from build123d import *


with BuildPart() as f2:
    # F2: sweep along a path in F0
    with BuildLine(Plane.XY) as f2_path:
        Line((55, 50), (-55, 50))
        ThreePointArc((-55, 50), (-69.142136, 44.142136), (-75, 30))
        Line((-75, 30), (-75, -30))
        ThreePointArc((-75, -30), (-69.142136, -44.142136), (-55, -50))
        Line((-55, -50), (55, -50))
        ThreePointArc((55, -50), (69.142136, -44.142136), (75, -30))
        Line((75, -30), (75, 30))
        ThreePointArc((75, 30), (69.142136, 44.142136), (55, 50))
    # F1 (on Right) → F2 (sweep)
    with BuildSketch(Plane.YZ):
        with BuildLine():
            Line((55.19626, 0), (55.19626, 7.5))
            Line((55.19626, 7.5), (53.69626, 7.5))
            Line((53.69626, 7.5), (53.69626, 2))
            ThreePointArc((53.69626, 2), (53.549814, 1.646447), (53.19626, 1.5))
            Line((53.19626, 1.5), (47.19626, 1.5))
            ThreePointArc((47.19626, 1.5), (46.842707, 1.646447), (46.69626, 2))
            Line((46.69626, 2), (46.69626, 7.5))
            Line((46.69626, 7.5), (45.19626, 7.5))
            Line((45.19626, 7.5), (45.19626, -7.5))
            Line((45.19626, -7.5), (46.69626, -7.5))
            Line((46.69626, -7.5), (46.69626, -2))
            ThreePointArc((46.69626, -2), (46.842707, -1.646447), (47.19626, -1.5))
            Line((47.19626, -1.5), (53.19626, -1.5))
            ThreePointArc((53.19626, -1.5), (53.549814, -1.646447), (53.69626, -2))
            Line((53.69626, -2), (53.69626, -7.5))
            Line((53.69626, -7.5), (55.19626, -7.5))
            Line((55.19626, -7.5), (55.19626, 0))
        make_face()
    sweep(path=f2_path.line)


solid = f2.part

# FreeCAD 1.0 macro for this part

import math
import FreeCAD as App
import Part
import Sketcher
Q = App.Units.Quantity

doc = App.newDocument("Part")
body = doc.addObject("PartDesign::Body", "Body")

# Sketch on YZ plane
sketch1 = body.newObject("Sketcher::SketchObject", "Sketch")
sketch1.AttachmentSupport = (doc.getObject("YZ_Plane"), [""])
sketch1.MapMode = "FlatFace"
sketch1.addGeometry(Part.LineSegment(App.Vector(55.2, 7.5, 0), App.Vector(53.7, 7.5, 0)), False)
sketch1.addGeometry(Part.LineSegment(App.Vector(53.7, 7.5, 0), App.Vector(53.7, 2, 0)), False)
sketch1.addGeometry(Part.ArcOfCircle(Part.Circle(App.Vector(53.2, 2, 0), App.Vector(0, 0, 1), 0.5), math.radians(-90), math.radians(0)), False)
sketch1.addGeometry(Part.LineSegment(App.Vector(53.2, 1.5, 0), App.Vector(47.2, 1.5, 0)), False)
sketch1.addGeometry(Part.ArcOfCircle(Part.Circle(App.Vector(47.2, 2, 0), App.Vector(0, 0, 1), 0.5), math.radians(-180), math.radians(-90)), False)
sketch1.addGeometry(Part.LineSegment(App.Vector(46.7, 2, 0), App.Vector(46.7, 7.5, 0)), False)
sketch1.addGeometry(Part.LineSegment(App.Vector(46.7, 7.5, 0), App.Vector(45.2, 7.5, 0)), False)
sketch1.addGeometry(Part.LineSegment(App.Vector(45.2, 7.5, 0), App.Vector(45.2, -7.5, 0)), False)
sketch1.addGeometry(Part.LineSegment(App.Vector(45.2, -7.5, 0), App.Vector(46.7, -7.5, 0)), False)
sketch1.addGeometry(Part.LineSegment(App.Vector(46.7, -7.5, 0), App.Vector(46.7, -2, 0)), False)
sketch1.addGeometry(Part.ArcOfCircle(Part.Circle(App.Vector(47.2, -2, 0), App.Vector(0, 0, 1), 0.5), math.radians(90), math.radians(180)), False)
sketch1.addGeometry(Part.LineSegment(App.Vector(47.2, -1.5, 0), App.Vector(53.2, -1.5, 0)), False)
sketch1.addGeometry(Part.ArcOfCircle(Part.Circle(App.Vector(53.2, -2, 0), App.Vector(0, 0, 1), 0.5), math.radians(0), math.radians(90)), False)
sketch1.addGeometry(Part.LineSegment(App.Vector(53.7, -2, 0), App.Vector(53.7, -7.5, 0)), False)
sketch1.addGeometry(Part.LineSegment(App.Vector(53.7, -7.5, 0), App.Vector(55.2, -7.5, 0)), False)
sketch1.addGeometry(Part.LineSegment(App.Vector(55.2, -7.5, 0), App.Vector(55.2, 7.5, 0)), False)
sketch1.addConstraint(Sketcher.Constraint("Coincident", 0, 2, 1, 1))
sketch1.addConstraint(Sketcher.Constraint("Tangent", 1, 2, 2, 2))
sketch1.addConstraint(Sketcher.Constraint("Tangent", 2, 1, 3, 1))
sketch1.addConstraint(Sketcher.Constraint("Coincident", 3, 2, 4, 2))
sketch1.addConstraint(Sketcher.Constraint("Coincident", 4, 1, 5, 1))
sketch1.addConstraint(Sketcher.Constraint("Coincident", 5, 2, 6, 1))
sketch1.addConstraint(Sketcher.Constraint("Coincident", 6, 2, 7, 1))
sketch1.addConstraint(Sketcher.Constraint("Coincident", 7, 2, 8, 1))
sketch1.addConstraint(Sketcher.Constraint("Coincident", 8, 2, 9, 1))
sketch1.addConstraint(Sketcher.Constraint("Coincident", 9, 2, 10, 2))
sketch1.addConstraint(Sketcher.Constraint("Coincident", 10, 1, 11, 1))
sketch1.addConstraint(Sketcher.Constraint("Tangent", 11, 2, 12, 2))
sketch1.addConstraint(Sketcher.Constraint("Tangent", 12, 1, 13, 1))
sketch1.addConstraint(Sketcher.Constraint("Coincident", 13, 2, 14, 1))
sketch1.addConstraint(Sketcher.Constraint("Coincident", 14, 2, 15, 1))
sketch1.addConstraint(Sketcher.Constraint("Coincident", 15, 2, 0, 1))
sketch1.addConstraint(Sketcher.Constraint("Horizontal", 0))
sketch1.addConstraint(Sketcher.Constraint("Vertical", 1))
sketch1.addConstraint(Sketcher.Constraint("Horizontal", 3))
sketch1.addConstraint(Sketcher.Constraint("Vertical", 5))
sketch1.addConstraint(Sketcher.Constraint("Horizontal", 6))
sketch1.addConstraint(Sketcher.Constraint("Vertical", 7))
sketch1.addConstraint(Sketcher.Constraint("Horizontal", 8))
sketch1.addConstraint(Sketcher.Constraint("Vertical", 9))
sketch1.addConstraint(Sketcher.Constraint("Horizontal", 11))
sketch1.addConstraint(Sketcher.Constraint("Vertical", 13))
sketch1.addConstraint(Sketcher.Constraint("Horizontal", 14))
sketch1.addConstraint(Sketcher.Constraint("Vertical", 15))
sketch1.addConstraint(Sketcher.Constraint("Equal", 2, 4))
sketch1.addConstraint(Sketcher.Constraint("Equal", 4, 10))
sketch1.addConstraint(Sketcher.Constraint("Equal", 10, 12))
sketch1.addConstraint(Sketcher.Constraint("Symmetric", 4, 3, 10, 3, -1))
sketch1.addConstraint(Sketcher.Constraint("Symmetric", 0, 2, 13, 2, -1))
sketch1.addConstraint(Sketcher.Constraint("Horizontal", 1, 2, 4, 1))
sketch1.addConstraint(Sketcher.Constraint("Horizontal", 0, 2, 5, 2))
sketch1.addConstraint(Sketcher.Constraint("Horizontal", 12, 3, 9, 2))
sketch1.addConstraint(Sketcher.Constraint("Horizontal", 8, 2, 13, 2))
sketch1.addConstraint(Sketcher.Constraint("Vertical", 10, 3, 3, 2))
sketch1.addConstraint(Sketcher.Constraint("Vertical", 3, 2, 10, 1))
sketch1.addConstraint(Sketcher.Constraint("Equal", 0, 6))
sketch1.addConstraint(Sketcher.Constraint("Radius", 2, Q("0.5 mm")))
sketch1.addConstraint(Sketcher.Constraint("DistanceX", 3, 2, 3, 1, Q("6 mm")))
sketch1.addConstraint(Sketcher.Constraint("DistanceY", 7, 2, 7, 1, Q("15 mm")))
sketch1.addConstraint(Sketcher.Constraint("DistanceX", 0, 2, 0, 1, Q("1.5 mm")))
sketch1.addConstraint(Sketcher.Constraint("DistanceY", 1, 2, 1, 1, Q("5.5 mm")))
sketch1.addConstraint(Sketcher.Constraint("DistanceX", -1, 1, 2, 3, Q("53.19626 mm")))

# Sketch on XY plane
sketch2 = body.newObject("Sketcher::SketchObject", "Sketch001")
sketch2.AttachmentSupport = (doc.getObject("XY_Plane"), [""])
sketch2.MapMode = "FlatFace"
sketch2.addGeometry(Part.LineSegment(App.Vector(55, 50, 0), App.Vector(-55, 50, 0)), False)
sketch2.addGeometry(Part.ArcOfCircle(Part.Circle(App.Vector(-55, 30, 0), App.Vector(0, 0, 1), 20), math.radians(90), math.radians(180)), False)
sketch2.addGeometry(Part.LineSegment(App.Vector(-75, 30, 0), App.Vector(-75, -30, 0)), False)
sketch2.addGeometry(Part.ArcOfCircle(Part.Circle(App.Vector(-55, -30, 0), App.Vector(0, 0, 1), 20), math.radians(180), math.radians(270)), False)
sketch2.addGeometry(Part.LineSegment(App.Vector(-55, -50, 0), App.Vector(55, -50, 0)), False)
sketch2.addGeometry(Part.ArcOfCircle(Part.Circle(App.Vector(55, -30, 0), App.Vector(0, 0, 1), 20), math.radians(-90), math.radians(0)), False)
sketch2.addGeometry(Part.LineSegment(App.Vector(75, -30, 0), App.Vector(75, 30, 0)), False)
sketch2.addGeometry(Part.ArcOfCircle(Part.Circle(App.Vector(55, 30, 0), App.Vector(0, 0, 1), 20), math.radians(0), math.radians(90)), False)
sketch2.addConstraint(Sketcher.Constraint("Tangent", 0, 2, 1, 1))
sketch2.addConstraint(Sketcher.Constraint("Tangent", 1, 2, 2, 1))
sketch2.addConstraint(Sketcher.Constraint("Tangent", 2, 2, 3, 1))
sketch2.addConstraint(Sketcher.Constraint("Tangent", 3, 2, 4, 1))
sketch2.addConstraint(Sketcher.Constraint("Tangent", 4, 2, 5, 1))
sketch2.addConstraint(Sketcher.Constraint("Tangent", 5, 2, 6, 1))
sketch2.addConstraint(Sketcher.Constraint("Tangent", 6, 2, 7, 1))
sketch2.addConstraint(Sketcher.Constraint("Tangent", 7, 2, 0, 1))
sketch2.addConstraint(Sketcher.Constraint("Horizontal", 0))
sketch2.addConstraint(Sketcher.Constraint("Vertical", 2))
sketch2.addConstraint(Sketcher.Constraint("Horizontal", 4))
sketch2.addConstraint(Sketcher.Constraint("Vertical", 6))
sketch2.addConstraint(Sketcher.Constraint("Equal", 1, 3))
sketch2.addConstraint(Sketcher.Constraint("Equal", 3, 5))
sketch2.addConstraint(Sketcher.Constraint("Equal", 5, 7))
sketch2.addConstraint(Sketcher.Constraint("Symmetric", 1, 3, 5, 3, -1, 1))
sketch2.addConstraint(Sketcher.Constraint("Radius", 1, Q("19.999999 mm")))
sketch2.addConstraint(Sketcher.Constraint("DistanceX", 0, 2, 0, 1, Q("110 mm")))
sketch2.addConstraint(Sketcher.Constraint("DistanceY", 2, 2, 2, 1, Q("60 mm")))
doc.recompute()

additivepipe = body.newObject("PartDesign::AdditivePipe", "AdditivePipe")
additivepipe.Profile = sketch1
additivepipe.Spine = (sketch2, ["Edge1", "Edge2", "Edge3", "Edge4", "Edge5", "Edge6", "Edge7", "Edge8"])

doc.recompute()
